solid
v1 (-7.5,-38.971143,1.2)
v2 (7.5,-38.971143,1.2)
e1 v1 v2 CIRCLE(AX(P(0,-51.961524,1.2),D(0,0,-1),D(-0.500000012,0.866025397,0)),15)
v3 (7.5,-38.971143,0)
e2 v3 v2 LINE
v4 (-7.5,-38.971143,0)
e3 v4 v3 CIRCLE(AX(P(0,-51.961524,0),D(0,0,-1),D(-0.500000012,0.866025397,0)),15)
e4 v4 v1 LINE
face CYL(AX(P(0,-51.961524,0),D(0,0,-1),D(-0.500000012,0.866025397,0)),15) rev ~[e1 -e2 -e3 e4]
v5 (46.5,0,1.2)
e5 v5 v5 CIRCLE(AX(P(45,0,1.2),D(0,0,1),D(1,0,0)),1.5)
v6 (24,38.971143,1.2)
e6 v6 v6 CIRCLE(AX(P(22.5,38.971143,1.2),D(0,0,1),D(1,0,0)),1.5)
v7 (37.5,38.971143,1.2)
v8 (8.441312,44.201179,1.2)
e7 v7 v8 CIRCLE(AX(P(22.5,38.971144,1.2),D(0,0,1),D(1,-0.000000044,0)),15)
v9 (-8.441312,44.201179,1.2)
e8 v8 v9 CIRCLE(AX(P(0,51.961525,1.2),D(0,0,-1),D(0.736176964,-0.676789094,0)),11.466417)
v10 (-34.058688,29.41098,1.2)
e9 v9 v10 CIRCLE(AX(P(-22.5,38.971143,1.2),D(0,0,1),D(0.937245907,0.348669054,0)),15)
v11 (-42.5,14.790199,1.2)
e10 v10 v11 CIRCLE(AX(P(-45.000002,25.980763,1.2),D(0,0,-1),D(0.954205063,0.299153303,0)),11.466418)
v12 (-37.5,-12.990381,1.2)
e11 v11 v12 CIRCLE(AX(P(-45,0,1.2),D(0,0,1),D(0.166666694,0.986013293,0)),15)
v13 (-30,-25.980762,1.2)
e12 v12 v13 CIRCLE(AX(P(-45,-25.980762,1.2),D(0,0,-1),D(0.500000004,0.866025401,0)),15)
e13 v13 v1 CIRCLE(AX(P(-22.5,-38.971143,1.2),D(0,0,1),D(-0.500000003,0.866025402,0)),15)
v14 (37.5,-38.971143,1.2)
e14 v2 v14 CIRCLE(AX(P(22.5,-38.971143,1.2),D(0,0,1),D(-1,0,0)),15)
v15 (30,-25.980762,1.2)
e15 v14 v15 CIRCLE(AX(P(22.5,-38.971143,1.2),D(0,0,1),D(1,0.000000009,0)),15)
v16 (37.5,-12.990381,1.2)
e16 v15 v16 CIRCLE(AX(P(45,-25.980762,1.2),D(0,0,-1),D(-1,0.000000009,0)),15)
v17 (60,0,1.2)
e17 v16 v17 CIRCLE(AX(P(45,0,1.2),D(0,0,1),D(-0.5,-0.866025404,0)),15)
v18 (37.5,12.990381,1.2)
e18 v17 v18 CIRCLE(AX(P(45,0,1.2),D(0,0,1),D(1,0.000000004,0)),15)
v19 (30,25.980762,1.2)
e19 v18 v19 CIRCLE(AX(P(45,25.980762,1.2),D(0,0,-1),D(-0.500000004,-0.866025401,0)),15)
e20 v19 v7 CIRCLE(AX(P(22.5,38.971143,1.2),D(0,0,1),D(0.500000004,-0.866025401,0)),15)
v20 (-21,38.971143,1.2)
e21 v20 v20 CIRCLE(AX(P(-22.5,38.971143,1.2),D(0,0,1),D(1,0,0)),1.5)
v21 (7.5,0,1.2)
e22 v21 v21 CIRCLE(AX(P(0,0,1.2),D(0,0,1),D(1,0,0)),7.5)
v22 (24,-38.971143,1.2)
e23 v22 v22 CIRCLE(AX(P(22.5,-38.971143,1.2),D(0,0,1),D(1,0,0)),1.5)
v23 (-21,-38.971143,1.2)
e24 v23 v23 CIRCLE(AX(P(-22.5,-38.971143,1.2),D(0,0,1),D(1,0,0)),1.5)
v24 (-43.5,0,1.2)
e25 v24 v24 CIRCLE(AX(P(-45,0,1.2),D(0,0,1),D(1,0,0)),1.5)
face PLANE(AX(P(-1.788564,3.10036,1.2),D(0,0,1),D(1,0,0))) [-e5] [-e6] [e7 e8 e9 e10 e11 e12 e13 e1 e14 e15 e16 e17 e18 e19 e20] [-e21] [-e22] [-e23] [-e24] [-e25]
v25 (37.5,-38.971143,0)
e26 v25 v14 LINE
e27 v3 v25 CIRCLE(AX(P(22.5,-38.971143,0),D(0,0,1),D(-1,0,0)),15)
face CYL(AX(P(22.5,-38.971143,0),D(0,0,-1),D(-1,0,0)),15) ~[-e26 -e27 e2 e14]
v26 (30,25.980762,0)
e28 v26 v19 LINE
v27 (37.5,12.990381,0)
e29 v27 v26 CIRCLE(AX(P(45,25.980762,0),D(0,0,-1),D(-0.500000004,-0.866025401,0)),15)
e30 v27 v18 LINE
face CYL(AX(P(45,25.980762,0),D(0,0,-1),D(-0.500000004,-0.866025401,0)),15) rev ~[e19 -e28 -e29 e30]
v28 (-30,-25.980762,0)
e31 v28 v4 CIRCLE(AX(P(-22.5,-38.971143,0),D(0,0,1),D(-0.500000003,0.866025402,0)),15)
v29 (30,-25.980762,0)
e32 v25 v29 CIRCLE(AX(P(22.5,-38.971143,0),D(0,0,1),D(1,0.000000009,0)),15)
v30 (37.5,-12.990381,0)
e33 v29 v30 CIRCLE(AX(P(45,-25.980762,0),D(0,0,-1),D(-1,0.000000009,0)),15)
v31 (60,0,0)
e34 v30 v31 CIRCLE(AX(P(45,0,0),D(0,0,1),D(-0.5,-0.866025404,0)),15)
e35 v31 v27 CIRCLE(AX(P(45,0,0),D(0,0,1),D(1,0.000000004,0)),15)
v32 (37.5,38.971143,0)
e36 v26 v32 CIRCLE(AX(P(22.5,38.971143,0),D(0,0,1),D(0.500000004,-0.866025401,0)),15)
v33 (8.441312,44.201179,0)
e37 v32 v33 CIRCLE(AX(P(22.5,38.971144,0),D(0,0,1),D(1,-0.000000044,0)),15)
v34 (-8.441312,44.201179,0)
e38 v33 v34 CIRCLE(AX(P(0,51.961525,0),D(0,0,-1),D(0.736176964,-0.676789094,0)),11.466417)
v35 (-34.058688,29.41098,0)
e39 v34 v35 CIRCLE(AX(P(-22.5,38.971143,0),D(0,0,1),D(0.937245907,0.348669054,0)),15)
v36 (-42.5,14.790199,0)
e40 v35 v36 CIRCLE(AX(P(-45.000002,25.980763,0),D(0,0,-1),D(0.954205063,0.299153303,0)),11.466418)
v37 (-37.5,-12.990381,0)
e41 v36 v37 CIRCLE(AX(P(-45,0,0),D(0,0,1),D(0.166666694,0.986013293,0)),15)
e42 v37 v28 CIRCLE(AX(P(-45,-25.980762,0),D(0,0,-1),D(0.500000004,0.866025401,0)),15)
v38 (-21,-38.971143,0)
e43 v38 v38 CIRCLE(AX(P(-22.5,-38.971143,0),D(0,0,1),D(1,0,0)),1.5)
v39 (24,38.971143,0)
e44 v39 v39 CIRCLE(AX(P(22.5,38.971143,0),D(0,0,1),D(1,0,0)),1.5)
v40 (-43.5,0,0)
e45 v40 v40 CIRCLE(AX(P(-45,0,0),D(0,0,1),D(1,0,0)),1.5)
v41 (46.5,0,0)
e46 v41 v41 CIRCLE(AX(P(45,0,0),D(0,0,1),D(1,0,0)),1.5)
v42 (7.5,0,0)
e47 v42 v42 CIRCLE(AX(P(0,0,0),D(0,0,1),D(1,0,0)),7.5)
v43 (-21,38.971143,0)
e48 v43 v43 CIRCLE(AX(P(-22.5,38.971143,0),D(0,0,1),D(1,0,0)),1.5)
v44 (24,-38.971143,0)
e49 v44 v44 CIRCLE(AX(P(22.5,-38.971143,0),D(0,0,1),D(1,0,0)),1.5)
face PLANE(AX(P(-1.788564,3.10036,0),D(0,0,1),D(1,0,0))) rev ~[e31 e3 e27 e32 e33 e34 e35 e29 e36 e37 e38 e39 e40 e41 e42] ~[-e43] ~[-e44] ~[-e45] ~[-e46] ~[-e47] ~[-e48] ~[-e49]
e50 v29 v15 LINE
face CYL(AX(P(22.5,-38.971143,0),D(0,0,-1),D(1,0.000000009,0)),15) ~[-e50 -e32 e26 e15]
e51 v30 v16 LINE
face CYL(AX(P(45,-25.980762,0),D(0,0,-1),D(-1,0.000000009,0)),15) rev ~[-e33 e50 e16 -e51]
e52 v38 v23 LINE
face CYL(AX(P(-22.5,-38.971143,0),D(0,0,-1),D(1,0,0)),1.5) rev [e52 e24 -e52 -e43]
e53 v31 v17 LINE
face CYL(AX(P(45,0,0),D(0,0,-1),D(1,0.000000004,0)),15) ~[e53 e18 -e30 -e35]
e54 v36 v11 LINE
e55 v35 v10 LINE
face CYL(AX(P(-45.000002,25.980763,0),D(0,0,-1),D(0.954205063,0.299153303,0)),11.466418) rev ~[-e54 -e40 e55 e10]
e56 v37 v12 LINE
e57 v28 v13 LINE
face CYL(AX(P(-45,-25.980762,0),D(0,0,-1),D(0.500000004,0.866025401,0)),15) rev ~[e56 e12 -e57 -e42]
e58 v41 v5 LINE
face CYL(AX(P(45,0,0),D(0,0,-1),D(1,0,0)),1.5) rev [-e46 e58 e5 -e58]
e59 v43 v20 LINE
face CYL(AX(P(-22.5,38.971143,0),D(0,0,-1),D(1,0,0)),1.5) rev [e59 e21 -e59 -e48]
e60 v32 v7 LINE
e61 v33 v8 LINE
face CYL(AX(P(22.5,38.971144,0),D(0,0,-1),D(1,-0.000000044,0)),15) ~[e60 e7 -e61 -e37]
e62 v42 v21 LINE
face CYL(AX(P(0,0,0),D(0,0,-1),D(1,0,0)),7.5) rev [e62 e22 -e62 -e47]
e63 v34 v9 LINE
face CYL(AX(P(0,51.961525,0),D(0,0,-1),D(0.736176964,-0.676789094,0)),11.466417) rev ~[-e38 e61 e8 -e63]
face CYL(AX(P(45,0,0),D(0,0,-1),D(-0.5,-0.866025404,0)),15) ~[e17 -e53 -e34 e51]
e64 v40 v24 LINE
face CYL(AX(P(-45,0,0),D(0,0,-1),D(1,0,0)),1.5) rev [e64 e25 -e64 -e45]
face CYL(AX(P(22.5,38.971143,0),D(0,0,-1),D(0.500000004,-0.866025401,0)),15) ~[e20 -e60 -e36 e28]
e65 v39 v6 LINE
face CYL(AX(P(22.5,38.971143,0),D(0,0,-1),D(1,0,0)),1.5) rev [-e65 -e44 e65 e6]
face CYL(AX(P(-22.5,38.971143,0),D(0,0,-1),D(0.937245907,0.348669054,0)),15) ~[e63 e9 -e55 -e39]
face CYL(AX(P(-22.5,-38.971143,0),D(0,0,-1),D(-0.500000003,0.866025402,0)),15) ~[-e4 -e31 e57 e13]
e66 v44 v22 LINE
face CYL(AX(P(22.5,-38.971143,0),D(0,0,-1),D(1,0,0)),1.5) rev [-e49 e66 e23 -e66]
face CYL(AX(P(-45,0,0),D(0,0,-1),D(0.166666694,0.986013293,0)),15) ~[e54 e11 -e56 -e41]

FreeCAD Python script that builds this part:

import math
import FreeCAD as App
import Part
import Sketcher

V = App.Vector

doc = App.newDocument("Part")
params = doc.addObject("Spreadsheet::Sheet", "Params")
for row, (alias, value) in enumerate([
    ("sketch1_diameter", "3 mm"),
    ("sketch1_diameter2", "15 mm"),
    ("sketch1_radius", "15 mm"),
    ("pad1_length", "1.2 mm"),
], start=1):
    params.set(f"A{row}", alias)
    params.set(f"B{row}", "=" + value)
    params.setAlias(f"B{row}", alias)

body = doc.addObject("PartDesign::Body", "Body")

# Sketch on XY plane
sketch1 = body.newObject("Sketcher::SketchObject", "Sketch")
sketch1.AttachmentSupport = (doc.getObject("XY_Plane"), [""])
sketch1.MapMode = "FlatFace"
sketch1.addGeometry([
    Part.ArcOfCircle(Part.Circle(V(0, 52, 0), V(0, 0, 1), 11.5), math.radians(-137), math.radians(-43)),  # 0
    Part.ArcOfCircle(Part.Circle(V(-22.5, 39, 0), V(0, 0, 1), 15), math.radians(20), math.radians(220)),  # 1
    Part.ArcOfCircle(Part.Circle(V(-45, 26, 0), V(0, 0, 1), 11.5), math.radians(-77), math.radians(17)),  # 2
    Part.ArcOfCircle(Part.Circle(V(-45, 0, 0), V(0, 0, 1), 15), math.radians(80), math.radians(300)),  # 3
    Part.ArcOfCircle(Part.Circle(V(-45, -26, 0), V(0, 0, 1), 15), math.radians(0), math.radians(60)),  # 4
    Part.ArcOfCircle(Part.Circle(V(-22.5, -39, 0), V(0, 0, 1), 15), math.radians(120), math.radians(360)),  # 5
    Part.ArcOfCircle(Part.Circle(V(0, -52, 0), V(0, 0, 1), 15), math.radians(60), math.radians(120)),  # 6
    Part.ArcOfCircle(Part.Circle(V(22.5, -39, 0), V(0, 0, 1), 15), math.radians(180), math.radians(360)),  # 7
    Part.ArcOfCircle(Part.Circle(V(22.5, -39, 0), V(0, 0, 1), 15), math.radians(0), math.radians(60)),  # 8
    Part.ArcOfCircle(Part.Circle(V(45, -26, 0), V(0, 0, 1), 15), math.radians(120), math.radians(180)),  # 9
    Part.ArcOfCircle(Part.Circle(V(45, 0, 0), V(0, 0, 1), 15), math.radians(-120), math.radians(0)),  # 10
    Part.ArcOfCircle(Part.Circle(V(45, 0, 0), V(0, 0, 1), 15), math.radians(0), math.radians(120)),  # 11
    Part.ArcOfCircle(Part.Circle(V(45, 26, 0), V(0, 0, 1), 15), math.radians(-180), math.radians(-120)),  # 12
    Part.ArcOfCircle(Part.Circle(V(22.5, 39, 0), V(0, 0, 1), 15), math.radians(-60), math.radians(0)),  # 13
    Part.ArcOfCircle(Part.Circle(V(22.5, 39, 0), V(0, 0, 1), 15), math.radians(0), math.radians(160)),  # 14
    Part.Circle(V(-22.5, -39, 0), V(0, 0, 1), 1.5),  # 15
    Part.Circle(V(22.5, -39, 0), V(0, 0, 1), 1.5),  # 16
    Part.Circle(V(-45, 0, 0), V(0, 0, 1), 1.5),  # 17
    Part.Circle(V(-22.5, 39, 0), V(0, 0, 1), 1.5),  # 18
    Part.Circle(V(0, 0, 0), V(0, 0, 1), 7.5),  # 19
    Part.Circle(V(45, 0, 0), V(0, 0, 1), 1.5),  # 20
    Part.Circle(V(22.5, 39, 0), V(0, 0, 1), 1.5),  # 21
], False)
sketch1.addConstraint([
    Sketcher.Constraint("Coincident", 0, 1, 1, 1),
    Sketcher.Constraint("Coincident", 1, 2, 2, 2),
    Sketcher.Constraint("Coincident", 2, 1, 3, 1),
    Sketcher.Constraint("Coincident", 3, 2, 4, 2),
    Sketcher.Constraint("Coincident", 4, 1, 5, 1),
    Sketcher.Constraint("Coincident", 5, 2, 6, 2),
    Sketcher.Constraint("Coincident", 6, 1, 7, 1),
    Sketcher.Constraint("Tangent", 7, 2, 8, 1),
    Sketcher.Constraint("Coincident", 8, 2, 9, 2),
    Sketcher.Constraint("Coincident", 9, 1, 10, 1),
    Sketcher.Constraint("Tangent", 10, 2, 11, 1),
    Sketcher.Constraint("Coincident", 11, 2, 12, 2),
    Sketcher.Constraint("Coincident", 12, 1, 13, 1),
    Sketcher.Constraint("Tangent", 13, 2, 14, 1),
    Sketcher.Constraint("Coincident", 14, 2, 0, 2),
    Sketcher.Constraint("Coincident", 19, 3, -1, 1),
    Sketcher.Constraint("Coincident", 15, 3, 5, 3),
    Sketcher.Constraint("Coincident", 16, 3, 7, 3),
    Sketcher.Constraint("Coincident", 17, 3, 3, 3),
    Sketcher.Constraint("Coincident", 18, 3, 1, 3),
    Sketcher.Constraint("Coincident", 20, 3, 10, 3),
    Sketcher.Constraint("Coincident", 21, 3, 13, 3),
    Sketcher.Constraint("Equal", 0, 2),
    Sketcher.Constraint("Equal", 1, 3),
    Sketcher.Constraint("Equal", 3, 4),
    Sketcher.Constraint("Equal", 4, 5),
    Sketcher.Constraint("Equal", 5, 6),
    Sketcher.Constraint("Equal", 6, 7),
    Sketcher.Constraint("Equal", 7, 8),
    Sketcher.Constraint("Equal", 8, 9),
    Sketcher.Constraint("Equal", 9, 10),
    Sketcher.Constraint("Equal", 10, 11),
    Sketcher.Constraint("Equal", 11, 12),
    Sketcher.Constraint("Equal", 12, 13),
    Sketcher.Constraint("Equal", 13, 14),
    Sketcher.Constraint("Equal", 15, 16),
    Sketcher.Constraint("Equal", 16, 17),
    Sketcher.Constraint("Equal", 17, 18),
    Sketcher.Constraint("Equal", 18, 20),
    Sketcher.Constraint("Equal", 20, 21),
    Sketcher.Constraint("Symmetric", 0, 3, 6, 3, -1, 1),
    Sketcher.Constraint("Symmetric", 1, 3, 7, 3, -1, 1),
    Sketcher.Constraint("Symmetric", 2, 3, 9, 3, -1, 1),
    Sketcher.Constraint("Symmetric", 3, 3, 10, 3, -1, 1),
    Sketcher.Constraint("Symmetric", 4, 3, 12, 3, -1, 1),
    Sketcher.Constraint("Symmetric", 5, 3, 13, 3, -1, 1),
    Sketcher.Constraint("Symmetric", 5, 3, 7, 3, -2),
    Sketcher.Constraint("Symmetric", 4, 3, 9, 3, -2),
    Sketcher.Constraint("PointOnObject", 0, 3, -2),
    Sketcher.Constraint("PointOnObject", 3, 3, -1),
    Sketcher.Constraint("PointOnObject", 10, 2, -1),
    Sketcher.Constraint("Horizontal", 9, 3, 4, 1),
    Sketcher.Constraint("Horizontal", 16, 3, 5, 2),
    Sketcher.Constraint("Horizontal", 6, 1, 7, 2),
    Sketcher.Constraint("Horizontal", 21, 3, 13, 2),
    Sketcher.Constraint("Vertical", 2, 3, 3, 3),
    Sketcher.Constraint("Vertical", 7, 2, 9, 1),
    Sketcher.Constraint("Diameter", 15, 3.0),
    Sketcher.Constraint("Diameter", 19, 15.0),
    Sketcher.Constraint("Radius", 1, 15.0),
    Sketcher.Constraint("DistanceX", 2, 3, -1, 1, 45.000002),
    Sketcher.Constraint("DistanceX", 5, 3, 7, 3, 45.0),
    Sketcher.Constraint("DistanceX", 2, 1, 18, 3, 20.0),
])
sketch1.setExpression("Constraints[57]", "Params.sketch1_diameter")
sketch1.setExpression("Constraints[58]", "Params.sketch1_diameter2")
sketch1.setExpression("Constraints[59]", "Params.sketch1_radius")
pad1 = body.newObject("PartDesign::Pad", "Pad")
pad1.Profile = sketch1
pad1.setExpression("Length", "Params.pad1_length")

doc.recompute()
